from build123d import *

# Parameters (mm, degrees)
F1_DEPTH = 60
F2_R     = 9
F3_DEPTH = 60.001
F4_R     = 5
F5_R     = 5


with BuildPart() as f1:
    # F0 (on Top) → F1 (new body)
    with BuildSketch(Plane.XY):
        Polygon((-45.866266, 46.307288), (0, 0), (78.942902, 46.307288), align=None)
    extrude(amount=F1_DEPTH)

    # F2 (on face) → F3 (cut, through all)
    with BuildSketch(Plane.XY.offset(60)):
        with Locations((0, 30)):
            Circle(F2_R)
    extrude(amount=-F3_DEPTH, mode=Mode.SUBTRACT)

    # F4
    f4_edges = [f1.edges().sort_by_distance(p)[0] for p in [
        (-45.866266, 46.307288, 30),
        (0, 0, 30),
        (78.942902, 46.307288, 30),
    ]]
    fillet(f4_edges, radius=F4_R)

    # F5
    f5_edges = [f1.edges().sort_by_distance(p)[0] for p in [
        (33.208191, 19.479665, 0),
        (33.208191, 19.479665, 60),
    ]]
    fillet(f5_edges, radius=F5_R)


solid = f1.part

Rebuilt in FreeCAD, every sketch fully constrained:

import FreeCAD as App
import Part
import Sketcher


def edges_at(feature, points):
    """Names of the edges that pass closest to the given points."""
    edges = feature.Shape.Edges
    near = lambda p: min(range(len(edges)), key=lambda i: edges[i].distToShape(Part.Vertex(*p))[0])
    return sorted({f"Edge{near(p) + 1}" for p in points})


def add_polygon(sketch, points):
    """Adds a closed chain of lines whose ends are joined by coincident constraints."""
    first, n = sketch.GeometryCount, len(points)
    for a, b in zip(points, points[1:] + points[:1]):
        sketch.addGeometry(Part.LineSegment(App.Vector(*a, 0), App.Vector(*b, 0)), False)
    for i in range(n):
        sketch.addConstraint(Sketcher.Constraint("Coincident", first + i, 2, first + (i + 1) % n, 1))

doc = App.newDocument("Part")
params = doc.addObject("Spreadsheet::Sheet", "Params")
for row, (alias, value) in enumerate([
    ("pad1_length", "60 mm"),
    ("sketch2_diameter", "18 mm"),
    ("fillet_radius", "5 mm"),
    ("fillet2_radius", "5 mm"),
], start=1):
    params.set(f"A{row}", alias)
    params.set(f"B{row}", "=" + value)
    params.setAlias(f"B{row}", alias)

body = doc.addObject("PartDesign::Body", "Body")

# Sketch on XY plane
sketch1 = body.newObject("Sketcher::SketchObject", "Sketch")
sketch1.AttachmentSupport = (doc.getObject("XY_Plane"), [""])
sketch1.MapMode = "FlatFace"
add_polygon(sketch1, [(-45.866266, 46.307288), (0, 0), (78.942902, 46.307288)])  # lines 0-2
sketch1.addConstraint(Sketcher.Constraint("Horizontal", 2))
sketch1.addConstraint(Sketcher.Constraint("Coincident", 0, 2, -1, 1))
sketch1.addConstraint(Sketcher.Constraint("DistanceX", 2, 2, 2, 1, 124.809168))
sketch1.addConstraint(Sketcher.Constraint("Distance", 0, 65.177291))
sketch1.addConstraint(Sketcher.Constraint("Distance", 1, 91.522384))
pad1 = body.newObject("PartDesign::Pad", "Pad")
pad1.Profile = sketch1
pad1.setExpression("Length", "Params.pad1_length")

# Sketch on XY plane
sketch2 = body.newObject("Sketcher::SketchObject", "Sketch001")
sketch2.AttachmentSupport = (doc.getObject("XY_Plane"), [""])
sketch2.MapMode = "FlatFace"
sketch2.AttachmentOffset = App.Placement(App.Vector(0, 0, 60), App.Rotation())
sketch2.addGeometry(Part.Circle(App.Vector(0, 30, 0), App.Vector(0, 0, 1), 9), False)
sketch2.addConstraint(Sketcher.Constraint("PointOnObject", 0, 3, -2))
sketch2.addConstraint(Sketcher.Constraint("Diameter", 0, 18.0))
sketch2.addConstraint(Sketcher.Constraint("DistanceY", -1, 1, 0, 3, 30.0))
sketch2.setExpression("Constraints[1]", "Params.sketch2_diameter")
pocket1 = body.newObject("PartDesign::Pocket", "Pocket")
pocket1.Profile = sketch2
pocket1.Type = "ThroughAll"
doc.recompute()

fillet = body.newObject("PartDesign::Fillet", "Fillet")
fillet.Base = (pocket1, edges_at(pocket1, [(-45.866, 46.307, 30), (0, 0, 30), (78.943, 46.307, 30)]))
fillet.setExpression("Radius", "Params.fillet_radius")
doc.recompute()

fillet2 = body.newObject("PartDesign::Fillet", "Fillet001")
fillet2.Base = (fillet, edges_at(fillet, [(33.208, 19.48, 0), (33.208, 19.48, 60)]))
fillet2.setExpression("Radius", "Params.fillet2_radius")

doc.recompute()
